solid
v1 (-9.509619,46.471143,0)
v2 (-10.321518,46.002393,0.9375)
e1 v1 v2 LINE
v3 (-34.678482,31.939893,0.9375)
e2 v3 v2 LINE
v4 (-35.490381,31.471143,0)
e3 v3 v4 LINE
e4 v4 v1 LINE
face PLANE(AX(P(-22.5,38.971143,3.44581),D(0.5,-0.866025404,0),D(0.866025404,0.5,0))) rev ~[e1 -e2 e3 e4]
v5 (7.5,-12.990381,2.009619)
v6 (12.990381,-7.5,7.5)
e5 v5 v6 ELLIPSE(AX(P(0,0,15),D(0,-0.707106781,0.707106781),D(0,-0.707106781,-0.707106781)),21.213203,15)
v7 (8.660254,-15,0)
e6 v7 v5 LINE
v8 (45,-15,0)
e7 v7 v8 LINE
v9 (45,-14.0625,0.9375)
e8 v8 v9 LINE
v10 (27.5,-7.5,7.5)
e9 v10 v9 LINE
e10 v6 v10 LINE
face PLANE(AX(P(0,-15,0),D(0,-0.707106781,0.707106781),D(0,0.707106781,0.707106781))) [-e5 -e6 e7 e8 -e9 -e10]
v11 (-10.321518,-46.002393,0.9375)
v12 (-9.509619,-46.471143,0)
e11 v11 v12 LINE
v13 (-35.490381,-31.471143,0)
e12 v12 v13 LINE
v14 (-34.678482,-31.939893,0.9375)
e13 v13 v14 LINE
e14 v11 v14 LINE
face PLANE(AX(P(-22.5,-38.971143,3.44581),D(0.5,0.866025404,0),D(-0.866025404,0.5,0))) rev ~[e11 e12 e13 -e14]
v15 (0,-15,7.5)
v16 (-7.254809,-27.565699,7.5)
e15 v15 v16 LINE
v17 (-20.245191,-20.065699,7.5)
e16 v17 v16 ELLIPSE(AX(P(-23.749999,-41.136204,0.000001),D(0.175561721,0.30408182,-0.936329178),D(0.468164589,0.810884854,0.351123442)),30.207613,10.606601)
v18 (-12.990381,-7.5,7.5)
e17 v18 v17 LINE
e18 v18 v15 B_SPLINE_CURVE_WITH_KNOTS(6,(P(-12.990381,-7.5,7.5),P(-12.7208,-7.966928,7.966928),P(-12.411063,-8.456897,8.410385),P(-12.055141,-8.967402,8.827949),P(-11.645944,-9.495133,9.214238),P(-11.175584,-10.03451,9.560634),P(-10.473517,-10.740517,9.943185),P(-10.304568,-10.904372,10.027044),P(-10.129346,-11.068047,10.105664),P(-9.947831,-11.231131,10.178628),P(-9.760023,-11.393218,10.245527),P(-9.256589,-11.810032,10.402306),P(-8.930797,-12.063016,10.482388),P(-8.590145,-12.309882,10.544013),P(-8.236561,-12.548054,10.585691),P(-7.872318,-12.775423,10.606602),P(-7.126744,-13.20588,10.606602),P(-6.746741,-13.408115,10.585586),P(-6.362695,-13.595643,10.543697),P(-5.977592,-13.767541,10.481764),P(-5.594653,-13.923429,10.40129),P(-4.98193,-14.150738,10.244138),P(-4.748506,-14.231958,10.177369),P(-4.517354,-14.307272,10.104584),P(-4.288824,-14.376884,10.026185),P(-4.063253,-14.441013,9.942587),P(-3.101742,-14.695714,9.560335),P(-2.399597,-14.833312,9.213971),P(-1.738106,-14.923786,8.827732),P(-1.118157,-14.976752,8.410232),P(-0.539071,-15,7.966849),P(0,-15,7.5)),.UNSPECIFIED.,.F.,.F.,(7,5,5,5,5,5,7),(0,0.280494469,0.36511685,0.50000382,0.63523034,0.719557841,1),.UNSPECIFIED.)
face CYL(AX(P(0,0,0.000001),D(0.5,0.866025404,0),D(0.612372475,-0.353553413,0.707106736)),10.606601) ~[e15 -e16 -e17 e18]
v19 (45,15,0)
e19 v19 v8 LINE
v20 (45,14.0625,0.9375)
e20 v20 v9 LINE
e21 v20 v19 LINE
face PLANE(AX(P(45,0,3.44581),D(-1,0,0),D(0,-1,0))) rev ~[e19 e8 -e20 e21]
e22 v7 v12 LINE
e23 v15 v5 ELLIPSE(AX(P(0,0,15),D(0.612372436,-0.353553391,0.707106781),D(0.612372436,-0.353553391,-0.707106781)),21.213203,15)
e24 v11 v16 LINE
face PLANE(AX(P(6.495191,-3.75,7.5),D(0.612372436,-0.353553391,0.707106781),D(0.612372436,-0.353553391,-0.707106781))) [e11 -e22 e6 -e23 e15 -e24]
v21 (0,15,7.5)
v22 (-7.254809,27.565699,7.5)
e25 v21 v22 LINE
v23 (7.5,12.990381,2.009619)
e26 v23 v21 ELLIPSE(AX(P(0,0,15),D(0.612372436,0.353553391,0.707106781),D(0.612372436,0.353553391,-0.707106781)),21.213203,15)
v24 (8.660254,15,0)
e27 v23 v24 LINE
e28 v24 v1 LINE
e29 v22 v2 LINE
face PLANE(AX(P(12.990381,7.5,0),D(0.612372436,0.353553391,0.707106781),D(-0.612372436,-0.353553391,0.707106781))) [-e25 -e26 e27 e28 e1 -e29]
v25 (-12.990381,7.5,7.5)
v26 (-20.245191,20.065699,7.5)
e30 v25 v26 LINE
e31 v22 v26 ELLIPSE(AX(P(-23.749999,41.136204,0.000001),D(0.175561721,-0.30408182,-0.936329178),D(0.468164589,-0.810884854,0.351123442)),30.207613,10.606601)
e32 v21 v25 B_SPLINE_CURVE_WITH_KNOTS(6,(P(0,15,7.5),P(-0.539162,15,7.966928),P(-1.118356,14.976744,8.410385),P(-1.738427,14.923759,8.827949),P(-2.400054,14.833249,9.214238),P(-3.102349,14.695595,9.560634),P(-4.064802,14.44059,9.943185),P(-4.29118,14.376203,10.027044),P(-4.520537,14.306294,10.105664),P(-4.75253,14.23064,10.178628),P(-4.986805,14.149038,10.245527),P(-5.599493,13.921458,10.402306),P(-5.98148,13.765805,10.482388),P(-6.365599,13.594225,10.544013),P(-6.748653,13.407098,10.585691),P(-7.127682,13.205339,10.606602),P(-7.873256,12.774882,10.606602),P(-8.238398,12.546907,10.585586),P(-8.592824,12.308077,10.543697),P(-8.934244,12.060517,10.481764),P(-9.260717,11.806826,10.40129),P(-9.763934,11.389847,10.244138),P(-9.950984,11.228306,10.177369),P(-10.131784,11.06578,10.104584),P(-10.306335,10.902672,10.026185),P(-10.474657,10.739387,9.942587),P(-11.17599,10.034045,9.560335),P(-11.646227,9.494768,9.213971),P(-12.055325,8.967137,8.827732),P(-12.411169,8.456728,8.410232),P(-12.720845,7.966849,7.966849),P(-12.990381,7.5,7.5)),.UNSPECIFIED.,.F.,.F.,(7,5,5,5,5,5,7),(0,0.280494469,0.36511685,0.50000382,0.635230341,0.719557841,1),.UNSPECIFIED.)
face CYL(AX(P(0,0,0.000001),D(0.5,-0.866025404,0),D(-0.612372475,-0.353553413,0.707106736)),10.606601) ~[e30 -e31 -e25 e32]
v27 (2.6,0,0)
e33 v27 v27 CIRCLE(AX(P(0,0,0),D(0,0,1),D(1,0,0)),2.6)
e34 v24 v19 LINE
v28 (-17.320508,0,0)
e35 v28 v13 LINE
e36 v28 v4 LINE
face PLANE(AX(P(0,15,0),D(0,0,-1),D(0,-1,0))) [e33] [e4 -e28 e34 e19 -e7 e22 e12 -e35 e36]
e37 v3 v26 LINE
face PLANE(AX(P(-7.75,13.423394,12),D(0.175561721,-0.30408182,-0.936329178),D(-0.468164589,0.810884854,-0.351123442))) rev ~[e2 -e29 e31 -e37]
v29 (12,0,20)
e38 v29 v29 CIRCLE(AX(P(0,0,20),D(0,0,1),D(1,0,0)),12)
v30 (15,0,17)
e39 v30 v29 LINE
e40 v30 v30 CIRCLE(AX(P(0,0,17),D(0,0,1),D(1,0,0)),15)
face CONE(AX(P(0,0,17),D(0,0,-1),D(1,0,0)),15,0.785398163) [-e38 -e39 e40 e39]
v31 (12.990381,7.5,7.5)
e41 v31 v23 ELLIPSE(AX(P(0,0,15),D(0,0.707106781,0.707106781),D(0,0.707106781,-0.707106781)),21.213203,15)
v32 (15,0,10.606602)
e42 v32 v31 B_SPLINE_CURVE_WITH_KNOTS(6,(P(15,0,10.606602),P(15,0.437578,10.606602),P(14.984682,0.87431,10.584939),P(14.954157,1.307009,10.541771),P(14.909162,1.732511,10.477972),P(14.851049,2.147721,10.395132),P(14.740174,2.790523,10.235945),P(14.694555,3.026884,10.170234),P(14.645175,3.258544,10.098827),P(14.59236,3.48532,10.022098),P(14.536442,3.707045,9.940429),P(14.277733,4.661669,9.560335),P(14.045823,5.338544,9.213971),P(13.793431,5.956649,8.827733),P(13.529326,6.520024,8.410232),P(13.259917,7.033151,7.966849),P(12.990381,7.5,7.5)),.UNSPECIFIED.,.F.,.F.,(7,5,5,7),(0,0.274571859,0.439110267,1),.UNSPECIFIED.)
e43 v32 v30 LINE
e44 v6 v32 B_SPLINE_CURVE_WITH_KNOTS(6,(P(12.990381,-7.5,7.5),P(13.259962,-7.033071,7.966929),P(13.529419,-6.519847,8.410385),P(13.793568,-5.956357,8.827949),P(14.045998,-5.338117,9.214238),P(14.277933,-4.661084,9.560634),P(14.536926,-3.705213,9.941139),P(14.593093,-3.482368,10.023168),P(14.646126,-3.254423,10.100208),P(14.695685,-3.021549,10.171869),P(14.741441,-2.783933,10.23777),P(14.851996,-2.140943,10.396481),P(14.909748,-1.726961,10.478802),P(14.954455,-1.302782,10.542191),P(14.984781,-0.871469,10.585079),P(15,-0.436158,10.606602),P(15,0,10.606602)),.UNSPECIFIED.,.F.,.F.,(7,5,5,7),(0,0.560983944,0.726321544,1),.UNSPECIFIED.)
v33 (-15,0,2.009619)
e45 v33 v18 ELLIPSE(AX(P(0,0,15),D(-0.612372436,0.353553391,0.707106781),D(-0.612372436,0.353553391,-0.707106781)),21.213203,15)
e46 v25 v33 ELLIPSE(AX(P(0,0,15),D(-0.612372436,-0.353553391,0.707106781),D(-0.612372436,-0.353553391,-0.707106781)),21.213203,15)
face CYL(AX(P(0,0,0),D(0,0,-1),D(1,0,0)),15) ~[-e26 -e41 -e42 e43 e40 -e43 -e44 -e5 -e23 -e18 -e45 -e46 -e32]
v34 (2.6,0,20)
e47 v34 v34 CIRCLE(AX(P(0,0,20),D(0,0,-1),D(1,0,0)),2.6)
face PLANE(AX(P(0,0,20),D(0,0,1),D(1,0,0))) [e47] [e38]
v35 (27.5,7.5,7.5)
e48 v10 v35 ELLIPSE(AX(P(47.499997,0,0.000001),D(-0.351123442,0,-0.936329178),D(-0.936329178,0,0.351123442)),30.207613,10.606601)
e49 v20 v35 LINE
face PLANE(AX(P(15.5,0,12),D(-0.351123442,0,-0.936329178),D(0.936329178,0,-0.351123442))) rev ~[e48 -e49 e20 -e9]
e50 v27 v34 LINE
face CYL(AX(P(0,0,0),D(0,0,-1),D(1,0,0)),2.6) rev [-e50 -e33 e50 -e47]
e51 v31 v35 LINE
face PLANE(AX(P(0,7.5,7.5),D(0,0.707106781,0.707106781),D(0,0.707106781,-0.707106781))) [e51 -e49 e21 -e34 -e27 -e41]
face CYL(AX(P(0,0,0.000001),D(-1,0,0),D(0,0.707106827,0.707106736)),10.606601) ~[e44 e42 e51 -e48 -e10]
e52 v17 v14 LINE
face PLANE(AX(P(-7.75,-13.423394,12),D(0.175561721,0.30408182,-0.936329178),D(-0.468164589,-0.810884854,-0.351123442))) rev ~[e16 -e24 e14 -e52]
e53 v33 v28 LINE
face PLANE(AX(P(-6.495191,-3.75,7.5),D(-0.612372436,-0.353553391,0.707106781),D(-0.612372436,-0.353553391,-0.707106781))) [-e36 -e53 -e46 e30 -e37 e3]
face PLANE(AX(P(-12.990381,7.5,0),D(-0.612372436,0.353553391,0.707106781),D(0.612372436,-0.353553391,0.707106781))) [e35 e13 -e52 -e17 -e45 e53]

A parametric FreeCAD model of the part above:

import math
import FreeCAD as App
import Part
import Sketcher

V = App.Vector


def edges_at(feature, points):
    """Names of the edges that pass closest to the given points."""
    edges = feature.Shape.Edges
    near = lambda p: min(range(len(edges)), key=lambda i: edges[i].distToShape(Part.Vertex(*p))[0])
    return sorted({f"Edge{near(p) + 1}" for p in points})


def add_polygon(sketch, points):
    """Adds a closed chain of lines whose ends are joined by coincident constraints."""
    first, n = sketch.GeometryCount, len(points)
    for a, b in zip(points, points[1:] + points[:1]):
        sketch.addGeometry(Part.LineSegment(App.Vector(*a, 0), App.Vector(*b, 0)), False)
    for i in range(n):
        sketch.addConstraint(Sketcher.Constraint("Coincident", first + i, 2, first + (i + 1) % n, 1))

doc = App.newDocument("Part")
body = doc.addObject("PartDesign::Body", "Body")

# Sketch on XY plane
sketch1 = body.newObject("Sketcher::SketchObject", "Sketch")
sketch1.AttachmentSupport = (doc.getObject("XY_Plane"), [""])
sketch1.MapMode = "FlatFace"
sketch1.addGeometry(Part.Circle(V(0, 0, 0), V(0, 0, 1), 15), False)
sketch1.addConstraint(Sketcher.Constraint("Coincident", 0, 3, -1, 1))
sketch1.addConstraint(Sketcher.Constraint("Diameter", 0, 30.0))
pad1 = body.newObject("PartDesign::Pad", "Pad")
pad1.Profile = sketch1
pad1.Length = 20

# Sketch on YZ plane
sketch2 = body.newObject("Sketcher::SketchObject", "Sketch001")
sketch2.AttachmentSupport = (doc.getObject("YZ_Plane"), [""])
sketch2.MapMode = "FlatFace"
sketch2.addGeometry(Part.LineSegment(V(-8, 8, 0), V(-15, 0, 0)), False)
sketch2.addGeometry(Part.LineSegment(V(-15, 0, 0), V(15, 0, 0)), False)
sketch2.addGeometry(Part.LineSegment(V(15, 0, 0), V(8, 8, 0)), False)
sketch2.addGeometry(Part.ArcOfCircle(Part.Circle(V(0, 0, 0), V(0, 0, 1), 11), math.radians(45), math.radians(135)), False)
sketch2.addConstraint(Sketcher.Constraint("Coincident", 0, 2, 1, 1))
sketch2.addConstraint(Sketcher.Constraint("Coincident", 1, 2, 2, 1))
sketch2.addConstraint(Sketcher.Constraint("Tangent", 2, 2, 3, 1))
sketch2.addConstraint(Sketcher.Constraint("Tangent", 3, 2, 0, 1))
sketch2.addConstraint(Sketcher.Constraint("Horizontal", 1))
sketch2.addConstraint(Sketcher.Constraint("Coincident", 3, 3, -1, 1))
sketch2.addConstraint(Sketcher.Constraint("Symmetric", 0, 2, 1, 2, -1, 1))
sketch2.addConstraint(Sketcher.Constraint("Perpendicular", 0, 2))
sketch2.addConstraint(Sketcher.Constraint("DistanceX", 1, 1, 1, 2, 30.0))
pad2 = body.newObject("PartDesign::Pad", "Pad001")
pad2.Profile = sketch2
pad2.Length = 45
doc.recompute()

polarpattern = body.newObject("PartDesign::PolarPattern", "PolarPattern")
polarpattern.Originals = [pad2]
polarpattern.Axis = (doc.getObject("Z_Axis"), [""])
polarpattern.Angle = 360
polarpattern.Occurrences = 3
body.Tip = polarpattern
doc.recompute()

chamfer = body.newObject("PartDesign::Chamfer", "Chamfer")
chamfer.Base = (polarpattern, edges_at(polarpattern, [(-15, 0, 20)]))
chamfer.Size = 3

# Sketch on XY plane
sketch3 = body.newObject("Sketcher::SketchObject", "Sketch002")
sketch3.AttachmentSupport = (doc.getObject("XY_Plane"), [""])
sketch3.MapMode = "FlatFace"
sketch3.addGeometry(Part.Circle(V(0, 0, 0), V(0, 0, 1), 2.6), False)
sketch3.addConstraint(Sketcher.Constraint("Coincident", 0, 3, -1, 1))
sketch3.addConstraint(Sketcher.Constraint("Diameter", 0, 5.2))
pocket1 = body.newObject("PartDesign::Pocket", "Pocket")
pocket1.Profile = sketch3
pocket1.Length = 30
pocket1.Reversed = True

# Sketch on XZ plane
sketch4 = body.newObject("Sketcher::SketchObject", "Sketch003")
sketch4.AttachmentSupport = (doc.getObject("XZ_Plane"), [""])
sketch4.MapMode = "FlatFace"
add_polygon(sketch4, [(16, 12), (48, 0), (48, 12)])  # lines 0-2
sketch4.addConstraint(Sketcher.Constraint("Vertical", 1))
sketch4.addConstraint(Sketcher.Constraint("Horizontal", 2))
sketch4.addConstraint(Sketcher.Constraint("PointOnObject", 0, 2, -1))
sketch4.addConstraint(Sketcher.Constraint("DistanceX", 2, 2, 2, 1, 32.0))
sketch4.addConstraint(Sketcher.Constraint("DistanceY", 1, 1, 1, 2, 12.0))
sketch4.addConstraint(Sketcher.Constraint("DistanceX", -1, 1, 0, 2, 47.5))
pocket2 = body.newObject("PartDesign::Pocket", "Pocket001")
pocket2.Profile = sketch4
pocket2.Length = 30
pocket2.Midplane = True
doc.recompute()

polarpattern2 = body.newObject("PartDesign::PolarPattern", "PolarPattern001")
polarpattern2.Originals = [pocket2]
polarpattern2.Axis = (doc.getObject("Z_Axis"), [""])
polarpattern2.Angle = 360
polarpattern2.Occurrences = 3
body.Tip = polarpattern2

doc.recompute()
